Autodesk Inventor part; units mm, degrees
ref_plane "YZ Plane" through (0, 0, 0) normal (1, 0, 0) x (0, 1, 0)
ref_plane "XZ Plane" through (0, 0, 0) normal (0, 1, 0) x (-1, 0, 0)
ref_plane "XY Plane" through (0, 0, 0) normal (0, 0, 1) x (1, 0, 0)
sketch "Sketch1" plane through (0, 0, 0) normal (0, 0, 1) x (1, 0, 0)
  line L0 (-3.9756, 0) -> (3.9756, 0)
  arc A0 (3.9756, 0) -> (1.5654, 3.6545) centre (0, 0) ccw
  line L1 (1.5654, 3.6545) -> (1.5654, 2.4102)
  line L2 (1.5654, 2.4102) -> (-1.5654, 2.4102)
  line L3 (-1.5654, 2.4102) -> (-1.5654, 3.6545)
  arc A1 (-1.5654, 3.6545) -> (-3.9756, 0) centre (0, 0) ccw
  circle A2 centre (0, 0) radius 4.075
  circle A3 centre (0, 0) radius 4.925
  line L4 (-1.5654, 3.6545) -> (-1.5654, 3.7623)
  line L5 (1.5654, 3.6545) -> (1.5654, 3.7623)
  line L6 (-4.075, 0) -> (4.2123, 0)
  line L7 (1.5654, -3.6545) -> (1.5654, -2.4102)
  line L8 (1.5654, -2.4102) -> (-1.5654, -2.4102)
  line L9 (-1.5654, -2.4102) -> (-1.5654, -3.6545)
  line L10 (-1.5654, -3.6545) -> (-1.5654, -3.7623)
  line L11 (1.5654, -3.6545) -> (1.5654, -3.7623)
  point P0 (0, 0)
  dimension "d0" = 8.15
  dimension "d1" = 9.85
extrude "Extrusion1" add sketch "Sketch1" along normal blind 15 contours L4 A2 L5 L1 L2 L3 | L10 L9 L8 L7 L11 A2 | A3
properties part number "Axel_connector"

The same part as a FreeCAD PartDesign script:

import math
import FreeCAD as App
import Part
import Sketcher
Q = App.Units.Quantity

doc = App.newDocument("Part")
body = doc.addObject("PartDesign::Body", "Body")

sketch1 = doc.addObject("Sketcher::SketchObject", "Sketch")
body.addObject(sketch1)
sketch1.AttachmentSupport = (doc.XY_Plane, [""])
sketch1.MapMode = "FlatFace"
sketch1.addGeometry([
    Part.Circle(App.Vector(0, 0, 0), App.Vector(0, 0, 1), 4.9),
    Part.LineSegment(App.Vector(-1.6, 3.8, 0), App.Vector(-1.6, 2.4, 0)),
    Part.LineSegment(App.Vector(-1.6, 2.4, 0), App.Vector(1.6, 2.4, 0)),
    Part.LineSegment(App.Vector(1.6, 2.4, 0), App.Vector(1.6, 3.8, 0)),
    Part.ArcOfCircle(Part.Circle(App.Vector(0, 0, 0), App.Vector(0, 0, 1), 4.1), math.radians(-67), math.radians(67)),
    Part.LineSegment(App.Vector(1.6, -3.8, 0), App.Vector(1.6, -2.4, 0)),
    Part.LineSegment(App.Vector(1.6, -2.4, 0), App.Vector(-1.6, -2.4, 0)),
    Part.LineSegment(App.Vector(-1.6, -2.4, 0), App.Vector(-1.6, -3.8, 0)),
    Part.ArcOfCircle(Part.Circle(App.Vector(0, 0, 0), App.Vector(0, 0, 1), 4.1), math.radians(113), math.radians(247)),
], False)
sketch1.addConstraint([
    Sketcher.Constraint("Coincident", 1, 2, 2, 1),
    Sketcher.Constraint("Coincident", 2, 2, 3, 1),
    Sketcher.Constraint("Coincident", 3, 2, 4, 2),
    Sketcher.Constraint("Coincident", 4, 1, 5, 1),
    Sketcher.Constraint("Coincident", 5, 2, 6, 1),
    Sketcher.Constraint("Coincident", 6, 2, 7, 1),
    Sketcher.Constraint("Coincident", 7, 2, 8, 2),
    Sketcher.Constraint("Coincident", 8, 1, 1, 1),
    Sketcher.Constraint("Vertical", 1),
    Sketcher.Constraint("Horizontal", 2),
    Sketcher.Constraint("Vertical", 3),
    Sketcher.Constraint("Vertical", 5),
    Sketcher.Constraint("Horizontal", 6),
    Sketcher.Constraint("Vertical", 7),
    Sketcher.Constraint("Coincident", 0, 3, -1, 1),
    Sketcher.Constraint("Coincident", 4, 3, -1, 1),
    Sketcher.Constraint("Coincident", 8, 3, -1, 1),
    Sketcher.Constraint("Equal", 4, 8),
    Sketcher.Constraint("Symmetric", 1, 2, 5, 2, -1, 1),
    Sketcher.Constraint("Horizontal", 4, 1, 7, 2),
    Sketcher.Constraint("Horizontal", 3, 2, 8, 1),
    Sketcher.Constraint("Diameter", 0, Q("9.85 mm")),
    Sketcher.Constraint("Radius", 4, Q("4.075 mm")),
    Sketcher.Constraint("DistanceY", 1, 2, 1, 1, Q("1.352 mm")),
    Sketcher.Constraint("DistanceX", 2, 1, 2, 2, Q("3.1308 mm")),
])
pad1 = doc.addObject("PartDesign::Pad", "Pad")
body.addObject(pad1)
pad1.Profile = sketch1
pad1.Length = 15

doc.recompute()
